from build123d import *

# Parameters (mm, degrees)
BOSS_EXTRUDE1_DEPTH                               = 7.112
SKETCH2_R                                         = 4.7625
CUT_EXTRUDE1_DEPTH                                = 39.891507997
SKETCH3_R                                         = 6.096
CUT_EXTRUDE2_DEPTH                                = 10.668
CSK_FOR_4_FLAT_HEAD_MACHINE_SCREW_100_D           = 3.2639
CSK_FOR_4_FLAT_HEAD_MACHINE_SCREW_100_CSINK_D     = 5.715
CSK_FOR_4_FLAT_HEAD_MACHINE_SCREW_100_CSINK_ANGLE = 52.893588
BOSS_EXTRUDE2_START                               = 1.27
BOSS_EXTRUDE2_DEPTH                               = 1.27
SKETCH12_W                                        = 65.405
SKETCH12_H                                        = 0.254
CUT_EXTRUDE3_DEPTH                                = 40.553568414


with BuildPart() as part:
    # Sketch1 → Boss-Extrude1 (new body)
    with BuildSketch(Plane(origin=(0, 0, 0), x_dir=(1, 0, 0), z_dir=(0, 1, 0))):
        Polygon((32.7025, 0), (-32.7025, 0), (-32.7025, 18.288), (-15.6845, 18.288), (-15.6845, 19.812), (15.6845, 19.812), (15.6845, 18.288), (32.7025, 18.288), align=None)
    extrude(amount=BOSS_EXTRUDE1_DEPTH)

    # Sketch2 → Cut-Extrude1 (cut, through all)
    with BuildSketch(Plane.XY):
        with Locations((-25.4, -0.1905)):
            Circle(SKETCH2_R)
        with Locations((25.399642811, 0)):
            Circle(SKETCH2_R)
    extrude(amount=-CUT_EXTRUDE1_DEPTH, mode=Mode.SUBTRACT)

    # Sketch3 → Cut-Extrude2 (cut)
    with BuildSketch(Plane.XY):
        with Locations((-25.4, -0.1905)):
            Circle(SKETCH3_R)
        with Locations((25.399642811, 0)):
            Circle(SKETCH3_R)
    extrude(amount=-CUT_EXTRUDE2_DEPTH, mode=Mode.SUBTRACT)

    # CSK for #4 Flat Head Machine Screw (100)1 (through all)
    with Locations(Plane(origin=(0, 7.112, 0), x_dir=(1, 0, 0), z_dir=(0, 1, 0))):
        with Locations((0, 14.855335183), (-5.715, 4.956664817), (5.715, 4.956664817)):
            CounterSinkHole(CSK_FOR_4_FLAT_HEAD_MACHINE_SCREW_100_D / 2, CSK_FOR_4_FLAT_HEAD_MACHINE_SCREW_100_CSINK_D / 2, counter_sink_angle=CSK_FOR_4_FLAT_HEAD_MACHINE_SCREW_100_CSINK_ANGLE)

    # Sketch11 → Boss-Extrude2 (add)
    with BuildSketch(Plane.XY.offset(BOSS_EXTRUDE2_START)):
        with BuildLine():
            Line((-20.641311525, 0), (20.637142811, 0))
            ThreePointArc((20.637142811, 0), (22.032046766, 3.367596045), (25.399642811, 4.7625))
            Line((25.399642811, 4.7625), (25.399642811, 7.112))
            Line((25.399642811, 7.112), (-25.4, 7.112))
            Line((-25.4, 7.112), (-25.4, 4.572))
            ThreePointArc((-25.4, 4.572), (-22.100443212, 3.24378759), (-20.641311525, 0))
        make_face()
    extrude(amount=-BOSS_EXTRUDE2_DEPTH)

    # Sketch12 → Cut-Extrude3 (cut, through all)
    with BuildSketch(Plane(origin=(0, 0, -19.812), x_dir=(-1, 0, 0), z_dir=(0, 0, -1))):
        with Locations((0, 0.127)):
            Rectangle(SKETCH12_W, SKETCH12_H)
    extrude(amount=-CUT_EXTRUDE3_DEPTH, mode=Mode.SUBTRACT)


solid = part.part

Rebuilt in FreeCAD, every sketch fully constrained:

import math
import FreeCAD as App
import Part
import Sketcher

V = App.Vector
Q = App.Units.Quantity


def add_polygon(sketch, points):
    """Adds a closed chain of lines whose ends are joined by coincident constraints."""
    first, n = sketch.GeometryCount, len(points)
    for a, b in zip(points, points[1:] + points[:1]):
        sketch.addGeometry(Part.LineSegment(App.Vector(*a, 0), App.Vector(*b, 0)), False)
    for i in range(n):
        sketch.addConstraint(Sketcher.Constraint("Coincident", first + i, 2, first + (i + 1) % n, 1))

doc = App.newDocument("Part")
body = doc.addObject("PartDesign::Body", "Body")

# Sketch on XZ plane
sketch1 = doc.addObject("Sketcher::SketchObject", "Sketch")
body.addObject(sketch1)
sketch1.AttachmentSupport = (doc.XZ_Plane, [""])
sketch1.MapMode = "FlatFace"
add_polygon(sketch1, [(-32.7, 0), (32.7, 0), (32.7, -18.3), (15.7, -18.3), (15.7, -19.8), (-15.7, -19.8), (-15.7, -18.3), (-32.7, -18.3)])  # lines 0-7
sketch1.addConstraint([
    Sketcher.Constraint("Horizontal", 0),
    Sketcher.Constraint("Vertical", 1),
    Sketcher.Constraint("Horizontal", 2),
    Sketcher.Constraint("Vertical", 3),
    Sketcher.Constraint("Horizontal", 4),
    Sketcher.Constraint("Vertical", 5),
    Sketcher.Constraint("Horizontal", 6),
    Sketcher.Constraint("Vertical", 7),
    Sketcher.Constraint("Symmetric", 0, 2, 7, 2, -1, 1),
    Sketcher.Constraint("Symmetric", 2, 2, 5, 2, -2),
    Sketcher.Constraint("DistanceX", 2, 2, 2, 1, Q("0.67 in")),
    Sketcher.Constraint("DistanceY", 1, 2, 1, 1, Q("0.72 in")),
    Sketcher.Constraint("DistanceY", 3, 2, 3, 1, Q("0.06 in")),
    Sketcher.Constraint("DistanceX", 0, 1, 0, 2, Q("2.575 in")),
])
pad1 = doc.addObject("PartDesign::Pad", "Pad")
body.addObject(pad1)
pad1.Profile = sketch1
pad1.Length = Q("0.28 in")
pad1.Reversed = True

# Sketch on XY plane
sketch2 = doc.addObject("Sketcher::SketchObject", "Sketch001")
body.addObject(sketch2)
sketch2.AttachmentSupport = (doc.XY_Plane, [""])
sketch2.MapMode = "FlatFace"
sketch2.addGeometry([
    Part.Circle(V(-25.4, -0.2, 0), V(0, 0, 1), 4.8),
    Part.Circle(V(25.4, 0, 0), V(0, 0, 1), 4.8),
], False)
sketch2.addConstraint([
    Sketcher.Constraint("Equal", 0, 1),
    Sketcher.Constraint("PointOnObject", 1, 3, -1),
    Sketcher.Constraint("Diameter", 0, Q("0.375 in")),
    Sketcher.Constraint("DistanceX", 0, 3, -1, 1, Q("1 in")),
    Sketcher.Constraint("DistanceY", 0, 3, -1, 1, Q("0.0075 in")),
    Sketcher.Constraint("DistanceX", -1, 1, 1, 3, 25.399643),
])
pocket1 = doc.addObject("PartDesign::Pocket", "Pocket")
body.addObject(pocket1)
pocket1.Profile = sketch2
pocket1.Type = "ThroughAll"

# Sketch on XY plane
sketch3 = doc.addObject("Sketcher::SketchObject", "Sketch002")
body.addObject(sketch3)
sketch3.AttachmentSupport = (doc.XY_Plane, [""])
sketch3.MapMode = "FlatFace"
sketch3.addGeometry([
    Part.Circle(V(-25, 0, 0), V(0, 0, 1), 6),
    Part.Circle(V(25, 0, 0), V(0, 0, 1), 6),
], False)
sketch3.addConstraint([
    Sketcher.Constraint("Equal", 0, 1),
    Sketcher.Constraint("PointOnObject", 1, 3, -1),
    Sketcher.Constraint("Diameter", 0, Q("0.48 in")),
    Sketcher.Constraint("DistanceX", 0, 3, -1, 1, Q("1 in")),
    Sketcher.Constraint("DistanceY", 0, 3, -1, 1, Q("0.0075 in")),
    Sketcher.Constraint("DistanceX", -1, 1, 1, 3, 25.399643),
])
pocket2 = doc.addObject("PartDesign::Pocket", "Pocket001")
body.addObject(pocket2)
pocket2.Profile = sketch3
pocket2.Length = Q("0.42 in")

# Sketch on XZ plane
sketch4 = doc.addObject("Sketcher::SketchObject", "Sketch003")
body.addObject(sketch4)
sketch4.AttachmentSupport = (doc.XZ_Plane, [""])
sketch4.MapMode = "FlatFace"
sketch4.AttachmentOffset = App.Placement(V(0, 0, -0.28 * 25.4), App.Rotation())
sketch4.addGeometry([
    Part.Circle(V(0, -14.9, 0), V(0, 0, 1), 1.6),
    Part.Circle(V(-5.7, -5, 0), V(0, 0, 1), 1.6),
    Part.Circle(V(5.7, -5, 0), V(0, 0, 1), 1.6),
], False)
sketch4.addConstraint([
    Sketcher.Constraint("Equal", 0, 1),
    Sketcher.Constraint("Equal", 1, 2),
    Sketcher.Constraint("Symmetric", 1, 3, 2, 3, -2),
    Sketcher.Constraint("PointOnObject", 0, 3, -2),
    Sketcher.Constraint("Diameter", 0, Q("0.1285 in")),
    Sketcher.Constraint("DistanceX", 1, 3, 2, 3, Q("0.45 in")),
    Sketcher.Constraint("DistanceY", 0, 3, 1, 3, 9.89867),
    Sketcher.Constraint("DistanceY", 0, 3, -1, 1, 14.855335),
])
doc.recompute()
hole = doc.addObject("PartDesign::Hole", "Hole")
body.addObject(hole)
hole.Profile = sketch4
hole.ThreadType = "None"
hole.Diameter = Q("0.1285 in")
hole.DepthType = "ThroughAll"
hole.HoleCutType = "Countersink"
hole.HoleCutDiameter = Q("0.225 in")
hole.HoleCutCountersinkAngle = 52.893588
hole.Reversed = True

# Sketch on XY plane
sketch5 = doc.addObject("Sketcher::SketchObject", "Sketch004")
body.addObject(sketch5)
sketch5.AttachmentSupport = (doc.XY_Plane, [""])
sketch5.MapMode = "FlatFace"
sketch5.AttachmentOffset = App.Placement(V(0, 0, 0.05 * 25.4), App.Rotation())
sketch5.addGeometry([
    Part.LineSegment(V(-20.6, 0, 0), V(20.6, 0, 0)),  # 0
    Part.ArcOfCircle(Part.Circle(V(25.4, 0, 0), V(0, 0, 1), 4.8), math.radians(90), math.radians(180)),  # 1
    Part.LineSegment(V(25.4, 4.8, 0), V(25.4, 7.1, 0)),  # 2
    Part.LineSegment(V(25.4, 7.1, 0), V(-25.4, 7.1, 0)),  # 3
    Part.LineSegment(V(-25.4, 7.1, 0), V(-25.4, 4.6, 0)),  # 4
    Part.ArcOfCircle(Part.Circle(V(-25.4, -0.2, 0), V(0, 0, 1), 4.8), math.radians(2), math.radians(90)),  # 5
], False)
sketch5.addConstraint([
    Sketcher.Constraint("Coincident", 0, 2, 1, 2),
    Sketcher.Constraint("Coincident", 1, 1, 2, 1),
    Sketcher.Constraint("Coincident", 2, 2, 3, 1),
    Sketcher.Constraint("Coincident", 3, 2, 4, 1),
    Sketcher.Constraint("Coincident", 4, 2, 5, 2),
    Sketcher.Constraint("Coincident", 5, 1, 0, 1),
    Sketcher.Constraint("Horizontal", 0),
    Sketcher.Constraint("Vertical", 2),
    Sketcher.Constraint("Horizontal", 3),
    Sketcher.Constraint("Vertical", 4),
    Sketcher.Constraint("Equal", 1, 5),
    Sketcher.Constraint("PointOnObject", 1, 3, -1),
    Sketcher.Constraint("PointOnObject", 0, 2, -1),
    Sketcher.Constraint("Vertical", 5, 3, 3, 2),
    Sketcher.Constraint("DistanceY", 4, 2, 4, 1, Q("0.1 in")),
    Sketcher.Constraint("DistanceX", 5, 3, -1, 1, Q("1 in")),
    Sketcher.Constraint("Radius", 1, Q("0.1875 in")),
    Sketcher.Constraint("DistanceY", -1, 1, 2, 2, Q("0.28 in")),
    Sketcher.Constraint("DistanceX", 0, 2, 1, 1, Q("0.1875 in")),
    Sketcher.Constraint("DistanceX", 0, 1, 0, 2, 41.278454),
])
pad2 = doc.addObject("PartDesign::Pad", "Pad001")
body.addObject(pad2)
pad2.Profile = sketch5
pad2.Length = Q("0.05 in")
pad2.Reversed = True

# Sketch on XY plane
sketch6 = doc.addObject("Sketcher::SketchObject", "Sketch005")
body.addObject(sketch6)
sketch6.AttachmentSupport = (doc.XY_Plane, [""])
sketch6.MapMode = "FlatFace"
sketch6.AttachmentOffset = App.Placement(V(0, 0, -0.78 * 25.4), App.Rotation())
add_polygon(sketch6, [(32.7, 0.25), (32.7, 0), (-32.7, 0), (-32.7, 0.25)])  # lines 0-3
sketch6.addConstraint([
    Sketcher.Constraint("Vertical", 0),
    Sketcher.Constraint("Horizontal", 1),
    Sketcher.Constraint("Vertical", 2),
    Sketcher.Constraint("Horizontal", 3),
    Sketcher.Constraint("Symmetric", 0, 2, 1, 2, -1, 1),
    Sketcher.Constraint("DistanceY", 0, 2, 0, 1, Q("0.01 in")),
    Sketcher.Constraint("DistanceX", 1, 2, 1, 1, Q("2.575 in")),
])
pocket3 = doc.addObject("PartDesign::Pocket", "Pocket002")
body.addObject(pocket3)
pocket3.Profile = sketch6
pocket3.Type = "ThroughAll"
pocket3.Reversed = True

doc.recompute()
